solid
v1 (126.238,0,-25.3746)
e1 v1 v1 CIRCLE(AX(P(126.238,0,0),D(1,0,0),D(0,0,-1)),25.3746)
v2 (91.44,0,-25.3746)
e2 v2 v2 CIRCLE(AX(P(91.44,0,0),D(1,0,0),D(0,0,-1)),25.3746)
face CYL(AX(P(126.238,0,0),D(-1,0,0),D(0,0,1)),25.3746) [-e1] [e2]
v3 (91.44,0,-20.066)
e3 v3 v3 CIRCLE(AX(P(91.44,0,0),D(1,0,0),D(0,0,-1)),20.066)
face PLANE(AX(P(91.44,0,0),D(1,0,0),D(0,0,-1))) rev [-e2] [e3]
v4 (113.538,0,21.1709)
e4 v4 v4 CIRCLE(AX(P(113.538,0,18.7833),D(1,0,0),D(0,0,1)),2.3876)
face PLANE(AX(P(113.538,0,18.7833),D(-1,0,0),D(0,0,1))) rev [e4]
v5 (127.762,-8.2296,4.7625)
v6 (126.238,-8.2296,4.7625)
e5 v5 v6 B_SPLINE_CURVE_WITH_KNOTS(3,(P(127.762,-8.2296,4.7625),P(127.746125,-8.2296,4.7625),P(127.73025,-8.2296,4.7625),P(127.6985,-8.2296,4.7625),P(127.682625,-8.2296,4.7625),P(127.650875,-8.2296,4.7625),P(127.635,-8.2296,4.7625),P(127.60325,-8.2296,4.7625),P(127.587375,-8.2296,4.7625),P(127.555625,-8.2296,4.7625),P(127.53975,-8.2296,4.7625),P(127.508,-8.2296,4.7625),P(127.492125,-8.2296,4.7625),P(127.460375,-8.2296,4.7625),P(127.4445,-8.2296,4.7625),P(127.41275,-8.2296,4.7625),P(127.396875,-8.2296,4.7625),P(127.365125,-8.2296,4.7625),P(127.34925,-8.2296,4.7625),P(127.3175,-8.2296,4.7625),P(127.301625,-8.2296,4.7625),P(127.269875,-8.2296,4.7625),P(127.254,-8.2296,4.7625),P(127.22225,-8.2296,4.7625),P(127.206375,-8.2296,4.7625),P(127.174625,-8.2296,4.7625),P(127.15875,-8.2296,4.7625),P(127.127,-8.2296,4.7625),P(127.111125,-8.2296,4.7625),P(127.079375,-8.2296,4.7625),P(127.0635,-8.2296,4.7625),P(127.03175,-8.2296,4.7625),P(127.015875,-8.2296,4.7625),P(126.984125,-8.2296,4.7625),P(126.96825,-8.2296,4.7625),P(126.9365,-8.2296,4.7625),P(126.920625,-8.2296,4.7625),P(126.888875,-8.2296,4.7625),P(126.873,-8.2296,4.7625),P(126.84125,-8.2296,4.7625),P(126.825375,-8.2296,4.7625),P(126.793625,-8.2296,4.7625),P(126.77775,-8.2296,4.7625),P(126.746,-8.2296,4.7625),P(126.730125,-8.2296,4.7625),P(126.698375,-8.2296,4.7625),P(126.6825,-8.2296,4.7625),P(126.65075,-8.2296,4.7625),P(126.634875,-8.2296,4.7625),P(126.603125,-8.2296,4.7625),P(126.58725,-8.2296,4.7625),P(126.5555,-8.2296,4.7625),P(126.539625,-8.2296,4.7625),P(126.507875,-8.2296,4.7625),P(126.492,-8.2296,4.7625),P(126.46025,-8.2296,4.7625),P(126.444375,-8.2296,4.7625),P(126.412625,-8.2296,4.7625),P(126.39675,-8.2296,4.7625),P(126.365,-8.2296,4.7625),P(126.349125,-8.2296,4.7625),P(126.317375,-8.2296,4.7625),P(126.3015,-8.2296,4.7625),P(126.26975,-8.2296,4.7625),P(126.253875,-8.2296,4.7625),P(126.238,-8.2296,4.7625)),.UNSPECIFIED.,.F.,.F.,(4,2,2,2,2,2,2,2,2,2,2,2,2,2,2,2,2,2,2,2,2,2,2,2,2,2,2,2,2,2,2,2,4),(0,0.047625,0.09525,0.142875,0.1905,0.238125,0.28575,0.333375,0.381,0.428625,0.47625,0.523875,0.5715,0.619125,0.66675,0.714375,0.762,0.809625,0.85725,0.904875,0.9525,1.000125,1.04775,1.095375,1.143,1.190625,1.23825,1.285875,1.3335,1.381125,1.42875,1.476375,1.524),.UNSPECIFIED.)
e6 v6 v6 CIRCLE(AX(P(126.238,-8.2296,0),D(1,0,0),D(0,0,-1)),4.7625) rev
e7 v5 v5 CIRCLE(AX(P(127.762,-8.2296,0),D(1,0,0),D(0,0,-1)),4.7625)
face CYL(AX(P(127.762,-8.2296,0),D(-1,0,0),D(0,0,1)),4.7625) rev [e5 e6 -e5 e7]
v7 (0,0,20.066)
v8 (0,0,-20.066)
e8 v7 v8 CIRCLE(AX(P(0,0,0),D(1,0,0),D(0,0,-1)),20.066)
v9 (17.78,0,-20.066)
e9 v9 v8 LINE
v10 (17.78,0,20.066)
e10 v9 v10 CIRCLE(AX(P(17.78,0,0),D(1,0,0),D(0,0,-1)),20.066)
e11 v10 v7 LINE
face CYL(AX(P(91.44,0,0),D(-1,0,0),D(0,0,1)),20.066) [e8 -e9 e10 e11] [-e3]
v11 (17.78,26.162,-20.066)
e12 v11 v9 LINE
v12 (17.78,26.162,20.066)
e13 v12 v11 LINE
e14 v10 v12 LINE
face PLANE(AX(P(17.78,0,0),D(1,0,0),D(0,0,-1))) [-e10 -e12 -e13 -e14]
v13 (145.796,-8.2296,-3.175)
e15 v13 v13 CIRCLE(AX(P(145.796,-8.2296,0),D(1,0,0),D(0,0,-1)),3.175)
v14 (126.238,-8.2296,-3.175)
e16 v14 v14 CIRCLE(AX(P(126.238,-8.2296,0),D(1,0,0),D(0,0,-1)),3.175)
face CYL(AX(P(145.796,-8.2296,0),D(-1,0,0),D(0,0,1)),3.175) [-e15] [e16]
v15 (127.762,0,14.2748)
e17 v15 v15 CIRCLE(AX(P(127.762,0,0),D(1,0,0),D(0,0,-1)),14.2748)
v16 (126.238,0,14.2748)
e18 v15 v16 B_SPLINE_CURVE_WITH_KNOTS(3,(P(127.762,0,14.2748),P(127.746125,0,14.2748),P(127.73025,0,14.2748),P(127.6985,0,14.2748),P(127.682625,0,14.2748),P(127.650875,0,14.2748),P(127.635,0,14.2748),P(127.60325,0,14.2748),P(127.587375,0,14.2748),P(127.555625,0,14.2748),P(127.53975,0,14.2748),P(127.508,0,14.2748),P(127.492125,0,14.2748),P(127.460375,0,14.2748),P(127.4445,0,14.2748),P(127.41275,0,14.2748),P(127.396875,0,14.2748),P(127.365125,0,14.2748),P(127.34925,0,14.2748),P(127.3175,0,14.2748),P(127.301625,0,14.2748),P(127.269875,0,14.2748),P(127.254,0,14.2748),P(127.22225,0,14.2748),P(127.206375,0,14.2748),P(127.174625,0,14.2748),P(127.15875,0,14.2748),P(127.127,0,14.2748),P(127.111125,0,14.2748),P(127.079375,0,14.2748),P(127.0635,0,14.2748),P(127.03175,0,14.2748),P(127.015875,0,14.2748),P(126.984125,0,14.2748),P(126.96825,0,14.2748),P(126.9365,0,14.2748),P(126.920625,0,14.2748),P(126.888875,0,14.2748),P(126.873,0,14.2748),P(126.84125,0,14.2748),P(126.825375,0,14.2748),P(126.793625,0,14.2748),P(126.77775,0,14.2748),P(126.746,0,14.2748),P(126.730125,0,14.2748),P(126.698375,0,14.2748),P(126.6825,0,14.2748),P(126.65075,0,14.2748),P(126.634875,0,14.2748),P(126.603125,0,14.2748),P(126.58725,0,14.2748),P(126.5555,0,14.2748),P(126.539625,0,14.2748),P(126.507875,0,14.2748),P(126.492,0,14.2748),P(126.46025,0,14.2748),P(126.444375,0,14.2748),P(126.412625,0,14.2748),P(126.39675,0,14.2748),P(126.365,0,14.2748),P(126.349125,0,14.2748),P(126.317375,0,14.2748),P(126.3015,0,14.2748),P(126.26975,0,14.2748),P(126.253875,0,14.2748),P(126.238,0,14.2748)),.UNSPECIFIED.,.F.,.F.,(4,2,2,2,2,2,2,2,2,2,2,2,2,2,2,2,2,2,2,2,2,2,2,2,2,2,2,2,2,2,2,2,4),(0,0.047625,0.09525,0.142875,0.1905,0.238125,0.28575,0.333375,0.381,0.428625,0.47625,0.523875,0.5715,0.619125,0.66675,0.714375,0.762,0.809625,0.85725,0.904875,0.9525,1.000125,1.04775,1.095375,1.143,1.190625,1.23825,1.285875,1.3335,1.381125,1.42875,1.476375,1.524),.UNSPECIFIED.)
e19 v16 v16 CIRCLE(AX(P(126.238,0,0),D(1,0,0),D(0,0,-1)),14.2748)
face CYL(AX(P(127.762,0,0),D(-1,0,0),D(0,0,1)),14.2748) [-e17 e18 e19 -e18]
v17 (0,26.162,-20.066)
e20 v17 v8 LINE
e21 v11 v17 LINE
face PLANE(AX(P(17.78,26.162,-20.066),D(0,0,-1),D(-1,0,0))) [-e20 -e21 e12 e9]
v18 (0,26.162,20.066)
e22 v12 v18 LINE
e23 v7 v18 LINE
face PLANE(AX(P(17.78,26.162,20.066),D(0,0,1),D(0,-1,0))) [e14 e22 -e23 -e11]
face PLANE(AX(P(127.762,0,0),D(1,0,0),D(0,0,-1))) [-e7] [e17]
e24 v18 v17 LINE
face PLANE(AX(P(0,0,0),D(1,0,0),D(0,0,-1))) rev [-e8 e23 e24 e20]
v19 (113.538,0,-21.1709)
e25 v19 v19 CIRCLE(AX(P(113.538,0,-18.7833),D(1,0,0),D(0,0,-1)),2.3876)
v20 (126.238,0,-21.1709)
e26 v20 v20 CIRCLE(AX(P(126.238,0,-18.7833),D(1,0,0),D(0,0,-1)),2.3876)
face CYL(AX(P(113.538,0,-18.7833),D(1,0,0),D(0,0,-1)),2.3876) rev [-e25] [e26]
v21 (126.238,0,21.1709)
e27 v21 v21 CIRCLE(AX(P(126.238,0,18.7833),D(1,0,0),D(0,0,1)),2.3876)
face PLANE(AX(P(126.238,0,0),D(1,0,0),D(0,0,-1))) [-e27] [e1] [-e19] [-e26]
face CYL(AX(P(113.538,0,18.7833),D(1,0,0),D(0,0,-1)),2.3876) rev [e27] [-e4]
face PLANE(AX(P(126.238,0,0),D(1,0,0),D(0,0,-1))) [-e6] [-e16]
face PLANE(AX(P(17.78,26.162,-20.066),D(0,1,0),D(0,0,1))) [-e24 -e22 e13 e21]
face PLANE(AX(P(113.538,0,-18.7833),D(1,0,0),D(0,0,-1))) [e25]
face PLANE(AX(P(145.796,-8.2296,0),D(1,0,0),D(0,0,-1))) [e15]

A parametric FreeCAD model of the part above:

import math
import FreeCAD as App
import Part
import Sketcher

V = App.Vector
Q = App.Units.Quantity

doc = App.newDocument("Part")
body = doc.addObject("PartDesign::Body", "Body")

# Sketch on YZ plane
sketch1 = doc.addObject("Sketcher::SketchObject", "Sketch")
body.addObject(sketch1)
sketch1.AttachmentSupport = (doc.YZ_Plane, [""])
sketch1.MapMode = "FlatFace"
sketch1.addGeometry(Part.Circle(V(0, 0, 0), V(0, 0, 1), 20.066), False)
sketch1.addConstraint(Sketcher.Constraint("Coincident", 0, 3, -1, 1))
sketch1.addConstraint(Sketcher.Constraint("Diameter", 0, Q("1.58 in")))
pad1 = doc.addObject("PartDesign::Pad", "Pad")
body.addObject(pad1)
pad1.Profile = sketch1
pad1.Length = Q("3.6 in")

# Sketch on YZ plane
sketch2 = doc.addObject("Sketcher::SketchObject", "Sketch001")
body.addObject(sketch2)
sketch2.AttachmentSupport = (doc.YZ_Plane, [""])
sketch2.MapMode = "FlatFace"
sketch2.addGeometry(Part.LineSegment(V(26.162, 20.066, 0), V(26.162, -20.066, 0)), False)
sketch2.addGeometry(Part.LineSegment(V(26.162, -20.066, 0), V(0, -20.066, 0)), False)
sketch2.addGeometry(Part.ArcOfCircle(Part.Circle(V(0, 0, 0), V(0, 0, 1), 20.066), math.radians(90), math.radians(270)), False)
sketch2.addGeometry(Part.LineSegment(V(0, 20.066, 0), V(26.162, 20.066, 0)), False)
sketch2.addConstraint(Sketcher.Constraint("Coincident", 0, 2, 1, 1))
sketch2.addConstraint(Sketcher.Constraint("Tangent", 1, 2, 2, 2))
sketch2.addConstraint(Sketcher.Constraint("Tangent", 2, 1, 3, 1))
sketch2.addConstraint(Sketcher.Constraint("Coincident", 3, 2, 0, 1))
sketch2.addConstraint(Sketcher.Constraint("Vertical", 0))
sketch2.addConstraint(Sketcher.Constraint("Horizontal", 1))
sketch2.addConstraint(Sketcher.Constraint("Horizontal", 3))
sketch2.addConstraint(Sketcher.Constraint("Coincident", 2, 3, -1, 1))
sketch2.addConstraint(Sketcher.Constraint("Radius", 2, Q("0.79 in")))
sketch2.addConstraint(Sketcher.Constraint("DistanceX", 1, 2, 1, 1, Q("1.03 in")))
pad2 = doc.addObject("PartDesign::Pad", "Pad001")
body.addObject(pad2)
pad2.Profile = sketch2
pad2.Length = Q("0.7 in")

# Sketch on YZ plane
sketch3 = doc.addObject("Sketcher::SketchObject", "Sketch002")
body.addObject(sketch3)
sketch3.AttachmentSupport = (doc.YZ_Plane, [""])
sketch3.MapMode = "FlatFace"
sketch3.AttachmentOffset = App.Placement(V(0, 0, 3.6 * 25.4), App.Rotation())
sketch3.addGeometry(Part.Circle(V(0, 0, 0), V(0, 0, 1), 25.3746), False)
sketch3.addConstraint(Sketcher.Constraint("Coincident", 0, 3, -1, 1))
sketch3.addConstraint(Sketcher.Constraint("Diameter", 0, Q("1.998 in")))
pad3 = doc.addObject("PartDesign::Pad", "Pad002")
body.addObject(pad3)
pad3.Profile = sketch3
pad3.Length = Q("1.37 in")

# Sketch on YZ plane
sketch4 = doc.addObject("Sketcher::SketchObject", "Sketch003")
body.addObject(sketch4)
sketch4.AttachmentSupport = (doc.YZ_Plane, [""])
sketch4.MapMode = "FlatFace"
sketch4.AttachmentOffset = App.Placement(V(0, 0, 4.97 * 25.4), App.Rotation())
sketch4.addGeometry(Part.Circle(V(0, 0, 0), V(0, 0, 1), 14.2748), False)
sketch4.addGeometry(Part.Circle(V(-8.2296, 0, 0), V(0, 0, 1), 4.7625), False)
sketch4.addConstraint(Sketcher.Constraint("Coincident", 0, 3, -1, 1))
sketch4.addConstraint(Sketcher.Constraint("PointOnObject", 1, 3, -1))
sketch4.addConstraint(Sketcher.Constraint("Diameter", 0, Q("1.124 in")))
sketch4.addConstraint(Sketcher.Constraint("Diameter", 1, Q("0.375 in")))
sketch4.addConstraint(Sketcher.Constraint("DistanceX", 1, 3, -1, 1, Q("0.324 in")))
pad4 = doc.addObject("PartDesign::Pad", "Pad003")
body.addObject(pad4)
pad4.Profile = sketch4
pad4.Length = Q("0.06 in")

# Sketch on YZ plane
sketch5 = doc.addObject("Sketcher::SketchObject", "Sketch004")
body.addObject(sketch5)
sketch5.AttachmentSupport = (doc.YZ_Plane, [""])
sketch5.MapMode = "FlatFace"
sketch5.AttachmentOffset = App.Placement(V(0, 0, 4.97 * 25.4), App.Rotation())
sketch5.addGeometry(Part.Circle(V(-8.2296, 0, 0), V(0, 0, 1), 3.175), False)
sketch5.addConstraint(Sketcher.Constraint("PointOnObject", 0, 3, -1))
sketch5.addConstraint(Sketcher.Constraint("Diameter", 0, Q("0.25 in")))
sketch5.addConstraint(Sketcher.Constraint("DistanceX", 0, 3, -1, 1, Q("0.324 in")))
pad5 = doc.addObject("PartDesign::Pad", "Pad004")
body.addObject(pad5)
pad5.Profile = sketch5
pad5.Length = Q("0.77 in")

# Sketch on YZ plane
sketch6 = doc.addObject("Sketcher::SketchObject", "Sketch005")
body.addObject(sketch6)
sketch6.AttachmentSupport = (doc.YZ_Plane, [""])
sketch6.MapMode = "FlatFace"
sketch6.AttachmentOffset = App.Placement(V(0, 0, 4.97 * 25.4), App.Rotation())
sketch6.addGeometry(Part.Circle(V(0, -18.7833, 0), V(0, 0, 1), 2.3876), False)
sketch6.addGeometry(Part.Circle(V(0, 18.7833, 0), V(0, 0, 1), 2.3876), False)
sketch6.addConstraint(Sketcher.Constraint("Equal", 0, 1))
sketch6.addConstraint(Sketcher.Constraint("Symmetric", 0, 3, 1, 3, -1, 1))
sketch6.addConstraint(Sketcher.Constraint("PointOnObject", 0, 3, -2))
sketch6.addConstraint(Sketcher.Constraint("Diameter", 0, Q("0.188 in")))
sketch6.addConstraint(Sketcher.Constraint("DistanceY", 0, 3, 1, 3, Q("1.479 in")))
pocket1 = doc.addObject("PartDesign::Pocket", "Pocket")
body.addObject(pocket1)
pocket1.Profile = sketch6
pocket1.Length = Q("0.5 in")

doc.recompute()
